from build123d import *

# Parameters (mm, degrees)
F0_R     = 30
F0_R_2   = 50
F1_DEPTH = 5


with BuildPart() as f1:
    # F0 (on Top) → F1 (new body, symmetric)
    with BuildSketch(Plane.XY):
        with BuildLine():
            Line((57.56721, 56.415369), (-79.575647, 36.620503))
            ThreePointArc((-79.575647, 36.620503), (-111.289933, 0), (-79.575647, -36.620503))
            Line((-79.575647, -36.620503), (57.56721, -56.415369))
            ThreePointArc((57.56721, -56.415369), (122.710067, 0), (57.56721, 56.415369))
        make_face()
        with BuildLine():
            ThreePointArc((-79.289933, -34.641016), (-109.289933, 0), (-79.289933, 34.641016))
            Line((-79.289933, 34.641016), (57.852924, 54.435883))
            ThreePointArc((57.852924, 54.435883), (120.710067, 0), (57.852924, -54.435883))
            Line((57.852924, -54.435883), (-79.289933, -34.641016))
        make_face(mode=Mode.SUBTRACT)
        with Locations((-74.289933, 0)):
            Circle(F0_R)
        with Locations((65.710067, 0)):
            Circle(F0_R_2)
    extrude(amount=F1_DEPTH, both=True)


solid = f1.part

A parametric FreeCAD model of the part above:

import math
import FreeCAD as App
import Part
import Sketcher

doc = App.newDocument("Part")
body = doc.addObject("PartDesign::Body", "Body")
body.AllowCompound = True

# Sketch on XY plane
sketch1 = body.newObject("Sketcher::SketchObject", "Sketch")
sketch1.AttachmentSupport = (doc.getObject("XY_Plane"), [""])
sketch1.MapMode = "FlatFace"
sketch1.addGeometry(Part.LineSegment(App.Vector(57.56721, 56.415369, 0), App.Vector(-79.575647, 36.620503, 0)), False)
sketch1.addGeometry(Part.ArcOfCircle(Part.Circle(App.Vector(-74.289933, 0, 0), App.Vector(0, 0, 1), 37), math.radians(98.213211), math.radians(261.786789)), False)
sketch1.addGeometry(Part.LineSegment(App.Vector(-79.575647, -36.620503, 0), App.Vector(57.56721, -56.415369, 0)), False)
sketch1.addGeometry(Part.ArcOfCircle(Part.Circle(App.Vector(65.710067, 0, 0), App.Vector(0, 0, 1), 57), math.radians(-98.213211), math.radians(98.213211)), False)
sketch1.addGeometry(Part.LineSegment(App.Vector(57.852924, -54.435883, 0), App.Vector(-79.289933, -34.641016, 0)), False)
sketch1.addGeometry(Part.ArcOfCircle(Part.Circle(App.Vector(-74.289933, 0, 0), App.Vector(0, 0, 1), 35), math.radians(98.21321), math.radians(261.78679)), False)
sketch1.addGeometry(Part.LineSegment(App.Vector(-79.289933, 34.641016, 0), App.Vector(57.852924, 54.435883, 0)), False)
sketch1.addGeometry(Part.ArcOfCircle(Part.Circle(App.Vector(65.710067, 0, 0), App.Vector(0, 0, 1), 55), math.radians(-98.21321), math.radians(98.21321)), False)
sketch1.addGeometry(Part.Circle(App.Vector(-74.289933, 0, 0), App.Vector(0, 0, 1), 30), False)
sketch1.addGeometry(Part.Circle(App.Vector(65.710067, 0, 0), App.Vector(0, 0, 1), 50), False)
sketch1.addConstraint(Sketcher.Constraint("Tangent", 0, 2, 1, 1))
sketch1.addConstraint(Sketcher.Constraint("Tangent", 1, 2, 2, 1))
sketch1.addConstraint(Sketcher.Constraint("Tangent", 2, 2, 3, 1))
sketch1.addConstraint(Sketcher.Constraint("Tangent", 3, 2, 0, 1))
sketch1.addConstraint(Sketcher.Constraint("Tangent", 4, 2, 5, 2))
sketch1.addConstraint(Sketcher.Constraint("Tangent", 5, 1, 6, 1))
sketch1.addConstraint(Sketcher.Constraint("Tangent", 6, 2, 7, 2))
sketch1.addConstraint(Sketcher.Constraint("Tangent", 7, 1, 4, 1))
sketch1.addConstraint(Sketcher.Constraint("Coincident", 5, 3, 1, 3))
sketch1.addConstraint(Sketcher.Constraint("Coincident", 7, 3, 3, 3))
sketch1.addConstraint(Sketcher.Constraint("Coincident", 8, 3, 1, 3))
sketch1.addConstraint(Sketcher.Constraint("Coincident", 9, 3, 3, 3))
sketch1.addConstraint(Sketcher.Constraint("Symmetric", 0, 2, 1, 2, -1))
sketch1.addConstraint(Sketcher.Constraint("Parallel", 2, 4))
sketch1.addConstraint(Sketcher.Constraint("Diameter", 8, 60.0))
sketch1.addConstraint(Sketcher.Constraint("Diameter", 9, 100.0))
sketch1.addConstraint(Sketcher.Constraint("Radius", 1, 37.0))
sketch1.addConstraint(Sketcher.Constraint("Radius", 3, 57.0))
sketch1.addConstraint(Sketcher.Constraint("Radius", 5, 35.0))
sketch1.addConstraint(Sketcher.Constraint("DistanceX", 1, 3, 3, 3, 140.0))
sketch1.addConstraint(Sketcher.Constraint("DistanceX", -1, 1, 2, 2, 57.56721))
pad1 = body.newObject("PartDesign::Pad", "Pad")
pad1.Profile = sketch1
pad1.Length = 10
pad1.Midplane = True

doc.recompute()
